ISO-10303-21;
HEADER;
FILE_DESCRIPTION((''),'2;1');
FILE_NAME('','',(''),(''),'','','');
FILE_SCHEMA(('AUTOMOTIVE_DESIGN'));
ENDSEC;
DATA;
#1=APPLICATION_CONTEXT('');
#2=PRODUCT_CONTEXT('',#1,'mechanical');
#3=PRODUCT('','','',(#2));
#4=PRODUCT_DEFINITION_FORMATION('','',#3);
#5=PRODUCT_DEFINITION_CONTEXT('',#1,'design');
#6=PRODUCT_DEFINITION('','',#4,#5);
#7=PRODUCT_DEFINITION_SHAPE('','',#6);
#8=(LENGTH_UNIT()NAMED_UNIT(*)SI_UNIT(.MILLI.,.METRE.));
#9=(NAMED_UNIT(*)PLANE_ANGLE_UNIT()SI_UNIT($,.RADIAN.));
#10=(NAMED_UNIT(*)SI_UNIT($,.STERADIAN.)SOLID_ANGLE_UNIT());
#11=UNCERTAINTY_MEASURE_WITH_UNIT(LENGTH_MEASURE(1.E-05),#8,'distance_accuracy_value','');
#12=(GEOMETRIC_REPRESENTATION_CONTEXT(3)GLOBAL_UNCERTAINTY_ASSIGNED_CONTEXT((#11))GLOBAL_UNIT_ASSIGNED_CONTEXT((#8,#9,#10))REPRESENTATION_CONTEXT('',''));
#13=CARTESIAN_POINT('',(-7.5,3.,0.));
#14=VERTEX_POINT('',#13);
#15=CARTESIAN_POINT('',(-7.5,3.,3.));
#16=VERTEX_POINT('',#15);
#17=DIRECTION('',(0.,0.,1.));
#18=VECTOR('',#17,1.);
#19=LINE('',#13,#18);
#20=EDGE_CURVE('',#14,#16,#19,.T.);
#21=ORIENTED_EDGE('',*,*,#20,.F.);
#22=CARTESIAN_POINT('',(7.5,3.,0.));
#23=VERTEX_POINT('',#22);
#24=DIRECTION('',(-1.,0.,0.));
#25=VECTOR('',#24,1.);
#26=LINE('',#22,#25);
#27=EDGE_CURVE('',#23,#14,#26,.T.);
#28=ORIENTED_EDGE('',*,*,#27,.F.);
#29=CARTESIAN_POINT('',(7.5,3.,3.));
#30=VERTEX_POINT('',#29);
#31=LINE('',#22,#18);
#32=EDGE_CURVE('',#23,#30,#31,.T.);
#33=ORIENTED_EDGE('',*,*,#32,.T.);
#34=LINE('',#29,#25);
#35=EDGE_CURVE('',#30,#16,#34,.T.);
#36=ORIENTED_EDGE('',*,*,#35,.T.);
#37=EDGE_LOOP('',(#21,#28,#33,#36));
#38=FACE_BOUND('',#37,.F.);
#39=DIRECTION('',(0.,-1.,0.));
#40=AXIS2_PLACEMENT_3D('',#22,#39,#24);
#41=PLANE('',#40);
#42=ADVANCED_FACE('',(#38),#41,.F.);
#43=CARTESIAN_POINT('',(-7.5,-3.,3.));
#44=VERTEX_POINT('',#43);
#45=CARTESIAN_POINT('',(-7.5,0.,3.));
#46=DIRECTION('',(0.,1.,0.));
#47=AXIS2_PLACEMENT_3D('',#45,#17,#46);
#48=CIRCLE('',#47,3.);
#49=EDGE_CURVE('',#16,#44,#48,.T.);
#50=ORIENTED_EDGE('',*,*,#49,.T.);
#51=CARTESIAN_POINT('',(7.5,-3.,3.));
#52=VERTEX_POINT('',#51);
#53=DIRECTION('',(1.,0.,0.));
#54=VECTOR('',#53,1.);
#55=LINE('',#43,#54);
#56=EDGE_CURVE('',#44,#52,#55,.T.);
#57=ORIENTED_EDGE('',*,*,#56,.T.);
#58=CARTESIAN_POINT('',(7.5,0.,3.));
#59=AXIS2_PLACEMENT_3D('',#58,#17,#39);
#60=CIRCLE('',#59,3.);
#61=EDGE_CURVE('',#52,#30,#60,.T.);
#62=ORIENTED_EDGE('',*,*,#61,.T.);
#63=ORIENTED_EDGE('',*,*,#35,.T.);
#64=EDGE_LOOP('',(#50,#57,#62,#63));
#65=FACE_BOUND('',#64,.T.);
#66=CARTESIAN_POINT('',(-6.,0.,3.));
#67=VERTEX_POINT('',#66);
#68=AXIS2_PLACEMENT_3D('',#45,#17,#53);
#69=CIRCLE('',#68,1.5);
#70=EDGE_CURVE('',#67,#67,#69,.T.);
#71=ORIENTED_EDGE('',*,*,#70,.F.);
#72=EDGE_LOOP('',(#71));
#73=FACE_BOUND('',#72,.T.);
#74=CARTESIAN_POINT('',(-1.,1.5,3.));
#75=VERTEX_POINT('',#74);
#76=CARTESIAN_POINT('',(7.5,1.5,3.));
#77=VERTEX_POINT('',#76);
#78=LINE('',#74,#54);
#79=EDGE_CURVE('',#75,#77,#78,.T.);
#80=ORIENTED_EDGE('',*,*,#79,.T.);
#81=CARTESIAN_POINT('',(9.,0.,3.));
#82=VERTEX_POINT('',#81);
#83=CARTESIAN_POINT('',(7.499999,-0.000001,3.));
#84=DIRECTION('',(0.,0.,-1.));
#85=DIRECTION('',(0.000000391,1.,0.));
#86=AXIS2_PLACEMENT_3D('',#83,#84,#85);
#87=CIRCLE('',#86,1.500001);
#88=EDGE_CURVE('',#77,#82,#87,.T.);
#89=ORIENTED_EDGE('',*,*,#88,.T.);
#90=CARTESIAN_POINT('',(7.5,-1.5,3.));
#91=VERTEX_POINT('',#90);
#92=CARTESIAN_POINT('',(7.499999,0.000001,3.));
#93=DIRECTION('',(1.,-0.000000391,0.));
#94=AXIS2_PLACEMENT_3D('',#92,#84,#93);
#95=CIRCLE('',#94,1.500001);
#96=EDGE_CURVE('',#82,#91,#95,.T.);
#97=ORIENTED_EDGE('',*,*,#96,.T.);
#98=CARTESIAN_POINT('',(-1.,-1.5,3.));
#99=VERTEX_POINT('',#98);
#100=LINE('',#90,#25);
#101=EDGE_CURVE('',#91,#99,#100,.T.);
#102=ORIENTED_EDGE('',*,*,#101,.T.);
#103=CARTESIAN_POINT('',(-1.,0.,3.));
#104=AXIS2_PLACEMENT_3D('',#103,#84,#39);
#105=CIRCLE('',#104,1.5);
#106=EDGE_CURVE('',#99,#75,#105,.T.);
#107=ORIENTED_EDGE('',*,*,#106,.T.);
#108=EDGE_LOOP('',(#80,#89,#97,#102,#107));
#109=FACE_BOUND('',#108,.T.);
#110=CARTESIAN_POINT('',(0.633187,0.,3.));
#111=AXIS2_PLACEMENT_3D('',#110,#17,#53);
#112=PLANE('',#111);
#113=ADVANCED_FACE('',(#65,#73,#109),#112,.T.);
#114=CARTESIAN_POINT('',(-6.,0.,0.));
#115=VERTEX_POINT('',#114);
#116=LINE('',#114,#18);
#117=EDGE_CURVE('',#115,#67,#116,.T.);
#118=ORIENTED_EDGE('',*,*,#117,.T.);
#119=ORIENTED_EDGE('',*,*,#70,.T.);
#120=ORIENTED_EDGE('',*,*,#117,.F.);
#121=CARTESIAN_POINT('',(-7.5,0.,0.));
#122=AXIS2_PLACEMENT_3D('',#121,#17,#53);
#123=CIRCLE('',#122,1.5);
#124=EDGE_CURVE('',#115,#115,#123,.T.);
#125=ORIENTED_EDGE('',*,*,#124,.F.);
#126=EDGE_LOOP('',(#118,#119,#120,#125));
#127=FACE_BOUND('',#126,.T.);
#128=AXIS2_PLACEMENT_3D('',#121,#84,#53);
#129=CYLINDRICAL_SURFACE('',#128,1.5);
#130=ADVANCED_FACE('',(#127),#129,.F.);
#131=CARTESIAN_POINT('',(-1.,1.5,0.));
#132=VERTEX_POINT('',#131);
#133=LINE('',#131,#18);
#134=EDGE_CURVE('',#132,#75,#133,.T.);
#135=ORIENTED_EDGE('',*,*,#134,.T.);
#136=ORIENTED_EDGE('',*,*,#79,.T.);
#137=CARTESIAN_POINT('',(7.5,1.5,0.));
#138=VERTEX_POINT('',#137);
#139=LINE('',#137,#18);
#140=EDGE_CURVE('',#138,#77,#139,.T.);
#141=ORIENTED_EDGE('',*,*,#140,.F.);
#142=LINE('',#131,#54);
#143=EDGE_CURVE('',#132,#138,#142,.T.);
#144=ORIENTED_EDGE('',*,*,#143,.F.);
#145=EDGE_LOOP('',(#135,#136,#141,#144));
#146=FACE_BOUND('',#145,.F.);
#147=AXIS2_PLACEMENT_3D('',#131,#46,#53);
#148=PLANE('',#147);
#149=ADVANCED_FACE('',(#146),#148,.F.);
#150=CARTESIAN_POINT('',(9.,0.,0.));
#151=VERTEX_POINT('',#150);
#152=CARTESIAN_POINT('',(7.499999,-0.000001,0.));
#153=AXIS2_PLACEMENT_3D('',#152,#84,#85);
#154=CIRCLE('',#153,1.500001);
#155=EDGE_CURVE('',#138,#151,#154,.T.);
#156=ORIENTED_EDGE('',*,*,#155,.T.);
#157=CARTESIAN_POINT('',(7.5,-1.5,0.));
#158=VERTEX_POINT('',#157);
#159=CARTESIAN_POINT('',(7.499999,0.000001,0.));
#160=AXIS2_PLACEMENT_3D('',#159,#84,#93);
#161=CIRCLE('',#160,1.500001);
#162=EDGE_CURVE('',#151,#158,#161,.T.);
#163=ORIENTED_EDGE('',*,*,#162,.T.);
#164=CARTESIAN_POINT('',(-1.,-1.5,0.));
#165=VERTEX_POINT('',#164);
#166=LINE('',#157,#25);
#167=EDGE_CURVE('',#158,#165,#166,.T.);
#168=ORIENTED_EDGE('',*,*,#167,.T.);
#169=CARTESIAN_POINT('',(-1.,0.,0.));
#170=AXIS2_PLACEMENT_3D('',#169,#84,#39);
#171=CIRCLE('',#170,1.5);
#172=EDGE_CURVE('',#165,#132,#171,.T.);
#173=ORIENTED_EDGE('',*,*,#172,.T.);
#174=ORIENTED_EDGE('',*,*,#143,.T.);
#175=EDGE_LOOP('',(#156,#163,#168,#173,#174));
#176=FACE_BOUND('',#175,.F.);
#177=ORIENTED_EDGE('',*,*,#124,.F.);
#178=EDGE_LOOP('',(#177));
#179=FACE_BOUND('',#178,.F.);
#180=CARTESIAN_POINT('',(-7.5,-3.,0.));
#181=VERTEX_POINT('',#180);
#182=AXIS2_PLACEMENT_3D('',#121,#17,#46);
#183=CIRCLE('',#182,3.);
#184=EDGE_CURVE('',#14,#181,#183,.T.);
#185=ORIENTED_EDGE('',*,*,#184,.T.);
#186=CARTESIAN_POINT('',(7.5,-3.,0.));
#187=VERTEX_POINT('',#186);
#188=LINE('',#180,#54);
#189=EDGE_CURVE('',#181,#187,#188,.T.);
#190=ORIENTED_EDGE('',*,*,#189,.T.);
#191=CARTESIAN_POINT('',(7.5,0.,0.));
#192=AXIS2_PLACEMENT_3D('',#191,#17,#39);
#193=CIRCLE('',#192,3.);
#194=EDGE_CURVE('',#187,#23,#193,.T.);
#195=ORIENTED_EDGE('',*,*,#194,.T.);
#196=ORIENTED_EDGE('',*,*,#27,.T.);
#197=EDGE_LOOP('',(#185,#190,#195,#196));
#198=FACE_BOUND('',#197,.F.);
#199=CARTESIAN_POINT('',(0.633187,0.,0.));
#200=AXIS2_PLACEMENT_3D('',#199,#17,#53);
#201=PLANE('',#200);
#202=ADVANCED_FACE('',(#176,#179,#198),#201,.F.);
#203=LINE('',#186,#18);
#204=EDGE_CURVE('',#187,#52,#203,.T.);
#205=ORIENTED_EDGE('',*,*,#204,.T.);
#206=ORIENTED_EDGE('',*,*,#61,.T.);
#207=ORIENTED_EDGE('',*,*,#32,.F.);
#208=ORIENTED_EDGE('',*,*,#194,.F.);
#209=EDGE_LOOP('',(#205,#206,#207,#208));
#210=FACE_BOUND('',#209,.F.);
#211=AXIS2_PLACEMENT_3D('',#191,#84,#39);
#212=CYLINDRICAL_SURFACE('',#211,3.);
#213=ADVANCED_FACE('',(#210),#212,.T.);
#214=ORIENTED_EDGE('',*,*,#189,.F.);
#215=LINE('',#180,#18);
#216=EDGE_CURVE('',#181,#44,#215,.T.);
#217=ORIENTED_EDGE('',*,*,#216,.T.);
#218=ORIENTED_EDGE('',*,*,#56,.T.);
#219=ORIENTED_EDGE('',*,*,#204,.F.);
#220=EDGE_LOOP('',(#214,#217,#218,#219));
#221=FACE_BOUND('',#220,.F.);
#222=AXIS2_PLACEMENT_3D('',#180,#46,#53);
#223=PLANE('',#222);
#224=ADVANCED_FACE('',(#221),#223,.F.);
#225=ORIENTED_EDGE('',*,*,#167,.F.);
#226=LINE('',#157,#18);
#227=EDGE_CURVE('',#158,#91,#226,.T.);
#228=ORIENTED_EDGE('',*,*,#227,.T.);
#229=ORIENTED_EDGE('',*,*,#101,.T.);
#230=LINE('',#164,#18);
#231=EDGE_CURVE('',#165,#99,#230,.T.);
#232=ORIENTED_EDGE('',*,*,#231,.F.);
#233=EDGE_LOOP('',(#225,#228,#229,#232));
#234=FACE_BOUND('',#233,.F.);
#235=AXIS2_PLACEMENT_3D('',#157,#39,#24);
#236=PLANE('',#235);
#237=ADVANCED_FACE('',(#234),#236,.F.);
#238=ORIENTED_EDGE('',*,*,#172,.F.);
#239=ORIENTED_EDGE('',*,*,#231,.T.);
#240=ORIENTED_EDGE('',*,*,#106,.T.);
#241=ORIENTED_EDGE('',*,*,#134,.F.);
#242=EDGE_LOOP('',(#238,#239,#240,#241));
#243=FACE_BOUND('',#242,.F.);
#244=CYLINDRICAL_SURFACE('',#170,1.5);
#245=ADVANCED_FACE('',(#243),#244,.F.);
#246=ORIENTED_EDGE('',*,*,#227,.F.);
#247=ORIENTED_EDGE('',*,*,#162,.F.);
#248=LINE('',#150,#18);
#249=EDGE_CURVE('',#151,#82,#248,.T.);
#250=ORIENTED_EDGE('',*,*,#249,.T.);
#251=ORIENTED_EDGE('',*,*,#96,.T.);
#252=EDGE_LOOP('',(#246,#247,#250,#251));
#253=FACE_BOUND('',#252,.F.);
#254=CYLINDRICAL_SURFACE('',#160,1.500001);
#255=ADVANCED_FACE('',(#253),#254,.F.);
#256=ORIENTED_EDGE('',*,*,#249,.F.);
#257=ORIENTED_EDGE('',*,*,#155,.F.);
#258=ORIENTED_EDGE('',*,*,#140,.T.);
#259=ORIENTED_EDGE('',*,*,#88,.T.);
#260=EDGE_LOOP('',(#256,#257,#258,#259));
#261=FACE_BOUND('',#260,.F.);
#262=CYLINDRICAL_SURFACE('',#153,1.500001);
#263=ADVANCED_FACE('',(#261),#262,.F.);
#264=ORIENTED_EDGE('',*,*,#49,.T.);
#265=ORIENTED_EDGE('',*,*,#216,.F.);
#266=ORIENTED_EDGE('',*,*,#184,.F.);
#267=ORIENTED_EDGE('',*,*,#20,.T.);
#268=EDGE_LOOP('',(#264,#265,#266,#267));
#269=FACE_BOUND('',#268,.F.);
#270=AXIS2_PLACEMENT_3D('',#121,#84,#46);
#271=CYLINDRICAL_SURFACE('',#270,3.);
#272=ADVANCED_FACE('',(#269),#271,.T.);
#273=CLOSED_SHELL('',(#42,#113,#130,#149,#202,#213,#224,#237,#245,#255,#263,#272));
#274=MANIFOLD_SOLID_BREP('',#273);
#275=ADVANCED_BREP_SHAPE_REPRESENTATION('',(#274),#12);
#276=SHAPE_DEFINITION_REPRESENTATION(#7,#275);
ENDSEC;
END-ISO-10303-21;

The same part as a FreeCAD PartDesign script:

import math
import FreeCAD as App
import Part
import Sketcher

V = App.Vector

doc = App.newDocument("Part")
body = doc.addObject("PartDesign::Body", "Body")

sketch1 = body.newObject("Sketcher::SketchObject", "Sketch")
sketch1.AttachmentSupport = (doc.getObject("XY_Plane"), [""])
sketch1.MapMode = "FlatFace"
sketch1.addGeometry(Part.LineSegment(V(7.5, 3, 0), V(-7.5, 3, 0)), False)
sketch1.addGeometry(Part.ArcOfCircle(Part.Circle(V(-7.5, 0, 0), V(0, 0, 1), 3), math.radians(90), math.radians(270)), False)
sketch1.addGeometry(Part.LineSegment(V(-7.5, -3, 0), V(7.5, -3, 0)), False)
sketch1.addGeometry(Part.ArcOfCircle(Part.Circle(V(7.5, 0, 0), V(0, 0, 1), 3), math.radians(-90), math.radians(90)), False)
sketch1.addGeometry(Part.Circle(V(-7.5, 0, 0), V(0, 0, 1), 1.5), False)
sketch1.addGeometry(Part.LineSegment(V(7.5, -1.5, 0), V(-1, -1.5, 0)), False)
sketch1.addGeometry(Part.ArcOfCircle(Part.Circle(V(-1, 0, 0), V(0, 0, 1), 1.5), math.radians(90), math.radians(270)), False)
sketch1.addGeometry(Part.LineSegment(V(-1, 1.5, 0), V(7.5, 1.5, 0)), False)
sketch1.addGeometry(Part.ArcOfCircle(Part.Circle(V(7.5, 0, 0), V(0, 0, 1), 1.5), math.radians(0), math.radians(90)), False)
sketch1.addGeometry(Part.ArcOfCircle(Part.Circle(V(7.5, 0, 0), V(0, 0, 1), 1.5), math.radians(-90), math.radians(0)), False)
sketch1.addConstraint(Sketcher.Constraint("Tangent", 0, 2, 1, 1))
sketch1.addConstraint(Sketcher.Constraint("Tangent", 1, 2, 2, 1))
sketch1.addConstraint(Sketcher.Constraint("Tangent", 2, 2, 3, 1))
sketch1.addConstraint(Sketcher.Constraint("Tangent", 3, 2, 0, 1))
sketch1.addConstraint(Sketcher.Constraint("Tangent", 5, 2, 6, 2))
sketch1.addConstraint(Sketcher.Constraint("Tangent", 6, 1, 7, 1))
sketch1.addConstraint(Sketcher.Constraint("Tangent", 7, 2, 8, 2))
sketch1.addConstraint(Sketcher.Constraint("Tangent", 8, 1, 9, 2))
sketch1.addConstraint(Sketcher.Constraint("Tangent", 9, 1, 5, 1))
sketch1.addConstraint(Sketcher.Constraint("Horizontal", 0))
sketch1.addConstraint(Sketcher.Constraint("Horizontal", 2))
sketch1.addConstraint(Sketcher.Constraint("Horizontal", 5))
sketch1.addConstraint(Sketcher.Constraint("Horizontal", 7))
sketch1.addConstraint(Sketcher.Constraint("Coincident", 4, 3, 1, 3))
sketch1.addConstraint(Sketcher.Constraint("Coincident", 8, 3, 3, 3))
sketch1.addConstraint(Sketcher.Constraint("Equal", 4, 6))
sketch1.addConstraint(Sketcher.Constraint("Equal", 6, 8))
sketch1.addConstraint(Sketcher.Constraint("Symmetric", 1, 3, 3, 3, -1, 1))
sketch1.addConstraint(Sketcher.Constraint("PointOnObject", 8, 1, -1))
sketch1.addConstraint(Sketcher.Constraint("Diameter", 4, 3.0))
sketch1.addConstraint(Sketcher.Constraint("Radius", 1, 3.0))
sketch1.addConstraint(Sketcher.Constraint("DistanceX", 0, 2, 0, 1, 15.0))
sketch1.addConstraint(Sketcher.Constraint("DistanceX", 5, 2, 5, 1, 8.5))
pad1 = body.newObject("PartDesign::Pad", "Pad")
pad1.Profile = sketch1
pad1.Length = 3

doc.recompute()
